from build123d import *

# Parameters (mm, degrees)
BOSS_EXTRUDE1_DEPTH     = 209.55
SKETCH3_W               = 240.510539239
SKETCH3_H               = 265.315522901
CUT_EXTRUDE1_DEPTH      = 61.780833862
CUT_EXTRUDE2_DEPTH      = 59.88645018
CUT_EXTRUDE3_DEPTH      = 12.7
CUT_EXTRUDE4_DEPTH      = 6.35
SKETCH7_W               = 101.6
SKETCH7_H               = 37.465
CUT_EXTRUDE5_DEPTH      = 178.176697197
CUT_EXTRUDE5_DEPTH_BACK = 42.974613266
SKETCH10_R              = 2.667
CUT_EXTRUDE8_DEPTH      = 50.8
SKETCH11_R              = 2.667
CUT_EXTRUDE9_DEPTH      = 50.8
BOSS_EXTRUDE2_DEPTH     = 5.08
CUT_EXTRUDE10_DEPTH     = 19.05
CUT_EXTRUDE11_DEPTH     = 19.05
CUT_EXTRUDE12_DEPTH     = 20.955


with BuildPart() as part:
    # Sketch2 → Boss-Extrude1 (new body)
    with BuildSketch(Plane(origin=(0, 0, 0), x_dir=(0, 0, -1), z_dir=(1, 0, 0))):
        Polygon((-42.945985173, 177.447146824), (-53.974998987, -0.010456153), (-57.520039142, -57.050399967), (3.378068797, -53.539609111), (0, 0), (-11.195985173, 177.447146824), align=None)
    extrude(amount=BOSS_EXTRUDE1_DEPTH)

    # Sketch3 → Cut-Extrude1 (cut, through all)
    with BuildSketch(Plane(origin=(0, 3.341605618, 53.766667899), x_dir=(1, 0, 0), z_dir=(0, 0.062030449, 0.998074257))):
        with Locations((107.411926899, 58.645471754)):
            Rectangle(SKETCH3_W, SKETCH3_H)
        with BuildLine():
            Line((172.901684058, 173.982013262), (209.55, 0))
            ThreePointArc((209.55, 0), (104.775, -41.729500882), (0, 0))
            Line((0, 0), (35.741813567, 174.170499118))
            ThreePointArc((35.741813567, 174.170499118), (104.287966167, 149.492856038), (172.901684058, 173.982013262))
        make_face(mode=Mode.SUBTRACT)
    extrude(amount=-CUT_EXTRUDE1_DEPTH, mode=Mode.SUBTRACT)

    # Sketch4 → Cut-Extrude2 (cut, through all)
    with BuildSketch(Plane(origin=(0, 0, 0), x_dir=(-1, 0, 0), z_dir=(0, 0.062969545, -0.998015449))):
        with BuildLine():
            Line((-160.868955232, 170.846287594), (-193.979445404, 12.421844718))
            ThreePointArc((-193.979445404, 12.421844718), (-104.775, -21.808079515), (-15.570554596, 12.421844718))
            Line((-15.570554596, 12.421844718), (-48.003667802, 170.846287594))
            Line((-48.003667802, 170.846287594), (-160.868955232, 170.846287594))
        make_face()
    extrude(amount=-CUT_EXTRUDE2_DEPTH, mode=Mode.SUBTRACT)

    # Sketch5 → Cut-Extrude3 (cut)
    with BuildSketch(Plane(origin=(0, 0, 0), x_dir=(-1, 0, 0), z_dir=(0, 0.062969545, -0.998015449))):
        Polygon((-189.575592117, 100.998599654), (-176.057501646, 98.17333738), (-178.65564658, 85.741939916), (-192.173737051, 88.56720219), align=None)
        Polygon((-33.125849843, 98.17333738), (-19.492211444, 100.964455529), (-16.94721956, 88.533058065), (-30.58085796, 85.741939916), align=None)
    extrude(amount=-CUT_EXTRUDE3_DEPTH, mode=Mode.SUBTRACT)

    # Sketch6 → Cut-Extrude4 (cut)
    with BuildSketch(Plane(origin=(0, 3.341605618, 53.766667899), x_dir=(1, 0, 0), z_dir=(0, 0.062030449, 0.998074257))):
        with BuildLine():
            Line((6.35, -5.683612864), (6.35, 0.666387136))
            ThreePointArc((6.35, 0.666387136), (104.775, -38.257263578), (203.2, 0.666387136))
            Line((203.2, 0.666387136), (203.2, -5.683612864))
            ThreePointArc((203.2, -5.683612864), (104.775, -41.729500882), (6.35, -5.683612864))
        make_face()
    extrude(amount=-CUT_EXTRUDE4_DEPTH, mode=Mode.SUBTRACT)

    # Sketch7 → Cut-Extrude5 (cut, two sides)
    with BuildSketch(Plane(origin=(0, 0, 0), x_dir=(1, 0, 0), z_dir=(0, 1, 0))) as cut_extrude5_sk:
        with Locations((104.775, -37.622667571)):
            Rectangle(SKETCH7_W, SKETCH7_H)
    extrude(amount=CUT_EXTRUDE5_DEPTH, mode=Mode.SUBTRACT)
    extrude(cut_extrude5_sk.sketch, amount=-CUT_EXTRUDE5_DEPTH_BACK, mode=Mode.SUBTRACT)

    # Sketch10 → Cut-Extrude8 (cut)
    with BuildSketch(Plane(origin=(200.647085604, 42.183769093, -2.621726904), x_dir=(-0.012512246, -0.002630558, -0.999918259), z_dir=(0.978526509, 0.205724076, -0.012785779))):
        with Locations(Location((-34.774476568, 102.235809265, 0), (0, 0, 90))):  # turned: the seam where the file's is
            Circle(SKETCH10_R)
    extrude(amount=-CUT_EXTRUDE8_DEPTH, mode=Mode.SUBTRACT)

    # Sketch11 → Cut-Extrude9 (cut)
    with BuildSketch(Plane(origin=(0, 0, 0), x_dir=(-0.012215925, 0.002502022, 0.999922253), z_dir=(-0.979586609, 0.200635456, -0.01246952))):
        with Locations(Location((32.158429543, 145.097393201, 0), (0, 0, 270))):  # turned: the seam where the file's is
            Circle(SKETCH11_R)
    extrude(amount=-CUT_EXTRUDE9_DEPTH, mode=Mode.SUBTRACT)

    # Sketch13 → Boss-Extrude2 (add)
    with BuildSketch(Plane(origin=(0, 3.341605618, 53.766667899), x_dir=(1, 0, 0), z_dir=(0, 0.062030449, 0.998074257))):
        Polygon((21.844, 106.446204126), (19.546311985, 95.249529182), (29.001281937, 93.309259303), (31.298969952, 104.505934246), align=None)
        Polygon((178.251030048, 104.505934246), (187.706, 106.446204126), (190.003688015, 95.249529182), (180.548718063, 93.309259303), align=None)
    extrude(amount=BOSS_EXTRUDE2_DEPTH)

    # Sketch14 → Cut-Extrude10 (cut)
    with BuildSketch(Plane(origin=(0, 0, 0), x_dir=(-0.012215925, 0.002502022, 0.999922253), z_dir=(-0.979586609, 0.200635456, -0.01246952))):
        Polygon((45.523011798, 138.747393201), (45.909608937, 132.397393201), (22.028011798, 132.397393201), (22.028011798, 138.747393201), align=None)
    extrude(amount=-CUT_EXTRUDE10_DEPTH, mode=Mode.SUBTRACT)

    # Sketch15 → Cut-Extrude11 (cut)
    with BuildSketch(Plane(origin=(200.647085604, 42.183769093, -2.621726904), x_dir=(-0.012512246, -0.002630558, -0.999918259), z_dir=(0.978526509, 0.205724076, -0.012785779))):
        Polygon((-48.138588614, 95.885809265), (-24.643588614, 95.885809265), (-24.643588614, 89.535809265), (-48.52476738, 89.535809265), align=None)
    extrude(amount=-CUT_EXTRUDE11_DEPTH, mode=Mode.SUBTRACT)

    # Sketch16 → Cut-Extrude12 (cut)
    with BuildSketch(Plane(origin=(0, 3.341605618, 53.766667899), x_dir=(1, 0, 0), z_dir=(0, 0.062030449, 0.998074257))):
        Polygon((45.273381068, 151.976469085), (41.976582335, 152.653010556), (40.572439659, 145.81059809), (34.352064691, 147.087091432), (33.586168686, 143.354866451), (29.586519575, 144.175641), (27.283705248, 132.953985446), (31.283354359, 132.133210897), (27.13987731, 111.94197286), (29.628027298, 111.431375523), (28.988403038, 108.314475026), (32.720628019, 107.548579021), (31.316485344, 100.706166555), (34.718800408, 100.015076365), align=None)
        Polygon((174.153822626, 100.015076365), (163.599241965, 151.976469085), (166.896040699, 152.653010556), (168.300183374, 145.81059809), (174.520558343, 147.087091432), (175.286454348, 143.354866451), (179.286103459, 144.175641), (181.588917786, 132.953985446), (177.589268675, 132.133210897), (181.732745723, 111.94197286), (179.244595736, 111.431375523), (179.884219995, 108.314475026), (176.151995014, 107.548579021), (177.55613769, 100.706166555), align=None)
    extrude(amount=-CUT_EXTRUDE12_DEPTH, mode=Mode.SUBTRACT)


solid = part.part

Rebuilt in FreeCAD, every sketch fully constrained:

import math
import FreeCAD as App
import Part
import Sketcher

V = App.Vector
Q = App.Units.Quantity

doc = App.newDocument("Part")
body = doc.addObject("PartDesign::Body", "Body")

sketch1 = doc.addObject("Sketcher::SketchObject", "Sketch")
body.addObject(sketch1)
sketch1.AttachmentSupport = (doc.YZ_Plane, [""])
sketch1.MapMode = "FlatFace"
sketch1.addGeometry([
    Part.LineSegment(V(177.447147, 42.945985, 0), V(-0.010456, 53.974999, 0)),
    Part.LineSegment(V(-0.010456, 53.974999, 0), V(-57.0504, 57.520039, 0)),
    Part.LineSegment(V(-57.0504, 57.520039, 0), V(-53.539609, -3.378069, 0)),
    Part.LineSegment(V(-53.539609, -3.378069, 0), V(0, 0, 0)),
    Part.LineSegment(V(0, 0, 0), V(177.447147, 11.195985, 0)),
    Part.LineSegment(V(177.447147, 11.195985, 0), V(177.447147, 42.945985, 0)),
], False)
sketch1.addConstraint([
    Sketcher.Constraint("Coincident", 0, 2, 1, 1),
    Sketcher.Constraint("Coincident", 1, 2, 2, 1),
    Sketcher.Constraint("Coincident", 2, 2, 3, 1),
    Sketcher.Constraint("Coincident", 3, 2, 4, 1),
    Sketcher.Constraint("Coincident", 4, 2, 5, 1),
    Sketcher.Constraint("Coincident", 5, 2, 0, 1),
    Sketcher.Constraint("Vertical", 5),
    Sketcher.Constraint("Coincident", 3, 2, -1, 1),
    Sketcher.Constraint("Parallel", 0, 1),
    Sketcher.Constraint("Parallel", 3, 4),
    Sketcher.Constraint("Equal", 0, 4),
    Sketcher.Constraint("Distance", 0, Q("7 in")),
    Sketcher.Constraint("DistanceY", 5, 1, 5, 2, Q("1.25 in")),
    Sketcher.Constraint("Distance", 1, Q("2.25 in")),
    Sketcher.Constraint("DistanceY", -1, 1, 0, 2, Q("2.125 in")),
    Sketcher.Constraint("DistanceX", 1, 2, -1, 1, Q("57.0504 mm")),
    Sketcher.Constraint("DistanceX", 2, 2, -1, 1, Q("53.539609 mm")),
])
pad1 = doc.addObject("PartDesign::Pad", "Pad")
body.addObject(pad1)
pad1.Profile = sketch1
pad1.Length = Q("8.25 in")

sketch2 = doc.addObject("Sketcher::SketchObject", "Sketch001")
body.addObject(sketch2)
sketch2.Placement = App.Placement(V(0, 3.341606, 53.766668), App.Rotation(V(1, 0, 0), V(0, 0.998074257, -0.062030449), V(0, 0.062030449, 0.998074257), "ZXY"))
sketch2.addGeometry([
    Part.LineSegment(V(-12.843343, 191.303233, 0), V(-12.843343, -74.01229, 0)),
    Part.LineSegment(V(-12.843343, -74.01229, 0), V(227.667197, -74.01229, 0)),
    Part.LineSegment(V(227.667197, -74.01229, 0), V(227.667197, 191.303233, 0)),
    Part.LineSegment(V(227.667197, 191.303233, 0), V(-12.843343, 191.303233, 0)),
    Part.ArcOfCircle(Part.Circle(V(104.436312, 257.442754, 0), V(0, 0, 1), 107.95), math.radians(-129.520538), math.radians(-50.636934)),
    Part.LineSegment(V(172.901684, 173.982013, 0), V(209.55, 0, 0)),
    Part.ArcOfCircle(Part.Circle(V(104.775, 110.670499, 0), V(0, 0, 1), 152.4), math.radians(-133.432537), math.radians(-46.567463)),
    Part.LineSegment(V(0, 0, 0), V(35.741814, 174.170499, 0)),
], False)
sketch2.addConstraint([
    Sketcher.Constraint("Coincident", 0, 2, 1, 1),
    Sketcher.Constraint("Coincident", 1, 2, 2, 1),
    Sketcher.Constraint("Coincident", 2, 2, 3, 1),
    Sketcher.Constraint("Coincident", 3, 2, 0, 1),
    Sketcher.Constraint("Coincident", 4, 2, 5, 1),
    Sketcher.Constraint("Coincident", 5, 2, 6, 2),
    Sketcher.Constraint("Coincident", 6, 1, 7, 1),
    Sketcher.Constraint("Coincident", 7, 2, 4, 1),
    Sketcher.Constraint("Vertical", 0),
    Sketcher.Constraint("Horizontal", 1),
    Sketcher.Constraint("Vertical", 2),
    Sketcher.Constraint("Horizontal", 3),
    Sketcher.Constraint("Coincident", 6, 1, -1, 1),
    Sketcher.Constraint("PointOnObject", 5, 2, -1),
    Sketcher.Constraint("Equal", 5, 7),
    Sketcher.Constraint("Radius", 6, Q("6 in")),
    Sketcher.Constraint("Radius", 4, Q("4.25 in")),
    Sketcher.Constraint("Distance", 5, Q("7 in")),
    Sketcher.Constraint("DistanceY", 6, 3, 7, 2, Q("2.5 in")),
    Sketcher.Constraint("DistanceX", -1, 1, 5, 2, Q("8.25 in")),
    Sketcher.Constraint("DistanceX", 1, 1, 1, 2, Q("240.510539 mm")),
    Sketcher.Constraint("DistanceY", 0, 2, 0, 1, Q("265.315523 mm")),
    Sketcher.Constraint("DistanceX", -1, 1, 4, 3, Q("104.436312 mm")),
    Sketcher.Constraint("DistanceY", 0, 2, -1, 1, Q("74.01229 mm")),
    Sketcher.Constraint("DistanceX", 0, 2, -1, 1, Q("12.843343 mm")),
])
pocket1 = doc.addObject("PartDesign::Pocket", "Pocket")
body.addObject(pocket1)
pocket1.Profile = sketch2
pocket1.Type = "ThroughAll"

sketch3 = doc.addObject("Sketcher::SketchObject", "Sketch002")
body.addObject(sketch3)
sketch3.Placement = App.Placement(V(0, 0, 0), App.Rotation(V(-1, 0, 0), V(0, 0.998015449, 0.062969545), V(0, 0.062969545, -0.998015449), "ZXY"))
sketch3.addGeometry([
    Part.LineSegment(V(-160.868955, 170.846288, 0), V(-193.979445, 12.421845, 0)),
    Part.ArcOfCircle(Part.Circle(V(-104.775, 111.54192, 0), V(0, 0, 1), 133.35), math.radians(-131.986055), math.radians(-48.013945)),
    Part.LineSegment(V(-15.570555, 12.421845, 0), V(-48.003668, 170.846288, 0)),
    Part.LineSegment(V(-48.003668, 170.846288, 0), V(-160.868955, 170.846288, 0)),
], False)
sketch3.addConstraint([
    Sketcher.Constraint("Coincident", 0, 2, 1, 1),
    Sketcher.Constraint("Coincident", 1, 2, 2, 1),
    Sketcher.Constraint("Coincident", 2, 2, 3, 1),
    Sketcher.Constraint("Coincident", 3, 2, 0, 1),
    Sketcher.Constraint("Horizontal", 3),
    Sketcher.Constraint("Horizontal", 0, 2, 1, 2),
    Sketcher.Constraint("Radius", 1, Q("5.25 in")),
    Sketcher.Constraint("DistanceX", 1, 3, -1, 1, Q("4.125 in")),
    Sketcher.Constraint("DistanceX", 3, 2, 1, 2, Q("145.298401 mm")),
    Sketcher.Constraint("Distance", 2, Q("161.710268 mm")),
    Sketcher.Constraint("DistanceX", 3, 2, 3, 1, Q("112.865287 mm")),
    Sketcher.Constraint("DistanceY", -1, 1, 1, 3, Q("111.54192 mm")),
    Sketcher.Constraint("DistanceX", 0, 2, 1, 2, Q("178.408891 mm")),
])
pocket2 = doc.addObject("PartDesign::Pocket", "Pocket001")
body.addObject(pocket2)
pocket2.Profile = sketch3
pocket2.Type = "ThroughAll"

sketch4 = doc.addObject("Sketcher::SketchObject", "Sketch003")
body.addObject(sketch4)
sketch4.Placement = App.Placement(V(0, 0, 0), App.Rotation(V(-1, 0, 0), V(0, 0.998015449, 0.062969545), V(0, 0.062969545, -0.998015449), "ZXY"))
sketch4.addGeometry([
    Part.LineSegment(V(-176.057502, 98.173337, 0), V(-189.575592, 100.9986, 0)),
    Part.LineSegment(V(-189.575592, 100.9986, 0), V(-192.173737, 88.567202, 0)),
    Part.LineSegment(V(-192.173737, 88.567202, 0), V(-178.655647, 85.74194, 0)),
    Part.LineSegment(V(-178.655647, 85.74194, 0), V(-176.057502, 98.173337, 0)),
    Part.LineSegment(V(-19.492211, 100.964456, 0), V(-33.12585, 98.173337, 0)),
    Part.LineSegment(V(-33.12585, 98.173337, 0), V(-30.580858, 85.74194, 0)),
    Part.LineSegment(V(-30.580858, 85.74194, 0), V(-16.94722, 88.533058, 0)),
    Part.LineSegment(V(-16.94722, 88.533058, 0), V(-19.492211, 100.964456, 0)),
], False)
sketch4.addConstraint([
    Sketcher.Constraint("Coincident", 0, 2, 1, 1),
    Sketcher.Constraint("Coincident", 1, 2, 2, 1),
    Sketcher.Constraint("Coincident", 2, 2, 3, 1),
    Sketcher.Constraint("Coincident", 3, 2, 0, 1),
    Sketcher.Constraint("Coincident", 4, 2, 5, 1),
    Sketcher.Constraint("Coincident", 5, 2, 6, 1),
    Sketcher.Constraint("Coincident", 6, 2, 7, 1),
    Sketcher.Constraint("Coincident", 7, 2, 4, 1),
    Sketcher.Constraint("Perpendicular", 0, 1),
    Sketcher.Constraint("Perpendicular", 1, 2),
    Sketcher.Constraint("Perpendicular", 2, 3),
    Sketcher.Constraint("Perpendicular", 4, 5),
    Sketcher.Constraint("Perpendicular", 5, 6),
    Sketcher.Constraint("Perpendicular", 6, 7),
    Sketcher.Constraint("Horizontal", 3, 2, 4, 2),
    Sketcher.Constraint("Horizontal", 2, 2, 5, 2),
    Sketcher.Constraint("Distance", 1, Q("0.5 in")),
    Sketcher.Constraint("DistanceY", -1, 1, 0, 2, Q("100.9986 mm")),
    Sketcher.Constraint("DistanceX", 3, 2, -1, 1, Q("176.057502 mm")),
    Sketcher.Constraint("Distance", 4, Q("13.916409 mm")),
    Sketcher.Constraint("DistanceY", -1, 1, 2, 2, Q("85.74194 mm")),
    Sketcher.Constraint("DistanceX", 4, 2, -1, 1, Q("33.12585 mm")),
    Sketcher.Constraint("DistanceX", 6, 2, -1, 1, Q("16.94722 mm")),
    Sketcher.Constraint("DistanceY", -1, 1, 6, 2, Q("88.533058 mm")),
])
pocket3 = doc.addObject("PartDesign::Pocket", "Pocket002")
body.addObject(pocket3)
pocket3.Profile = sketch4
pocket3.Length = Q("0.5 in")

sketch5 = doc.addObject("Sketcher::SketchObject", "Sketch004")
body.addObject(sketch5)
sketch5.Placement = App.Placement(V(0, 3.341606, 53.766668), App.Rotation(V(1, 0, 0), V(0, 0.998074257, -0.062030449), V(0, 0.062030449, 0.998074257), "ZXY"))
sketch5.addGeometry([
    Part.LineSegment(V(6.35, 0.666387, 0), V(6.35, -5.683613, 0)),
    Part.ArcOfCircle(Part.Circle(V(104.775, 110.670499, 0), V(0, 0, 1), 152.4), math.radians(-130.228185), math.radians(-49.771815)),
    Part.LineSegment(V(203.2, -5.683613, 0), V(203.2, 0.666387, 0)),
    Part.ArcOfCircle(Part.Circle(V(104.775, 105.646648, 0), V(0, 0, 1), 143.903912), math.radians(-133.154134), math.radians(-46.845866)),
], False)
sketch5.addConstraint([
    Sketcher.Constraint("Coincident", 0, 2, 1, 1),
    Sketcher.Constraint("Coincident", 1, 2, 2, 1),
    Sketcher.Constraint("Coincident", 2, 2, 3, 2),
    Sketcher.Constraint("Coincident", 3, 1, 0, 1),
    Sketcher.Constraint("Vertical", 0),
    Sketcher.Constraint("Vertical", 2),
    Sketcher.Constraint("Horizontal", 0, 2, 1, 2),
    Sketcher.Constraint("Horizontal", 2, 2, 3, 1),
    Sketcher.Constraint("Radius", 1, Q("6 in")),
    Sketcher.Constraint("DistanceX", -1, 1, 1, 2, Q("8 in")),
    Sketcher.Constraint("DistanceY", 0, 2, 0, 1, Q("0.25 in")),
    Sketcher.Constraint("DistanceX", -1, 1, 0, 2, Q("0.25 in")),
    Sketcher.Constraint("Radius", 3, Q("143.903912 mm")),
    Sketcher.Constraint("DistanceY", -1, 1, 1, 3, Q("110.670499 mm")),
])
pocket4 = doc.addObject("PartDesign::Pocket", "Pocket003")
body.addObject(pocket4)
pocket4.Profile = sketch5
pocket4.Length = Q("0.25 in")

sketch6 = doc.addObject("Sketcher::SketchObject", "Sketch005")
body.addObject(sketch6)
sketch6.AttachmentSupport = (doc.XZ_Plane, [""])
sketch6.MapMode = "FlatFace"
sketch6.addGeometry([
    Part.LineSegment(V(53.975, 18.890168, 0), V(53.975, 56.355168, 0)),
    Part.LineSegment(V(53.975, 56.355168, 0), V(155.575, 56.355168, 0)),
    Part.LineSegment(V(155.575, 56.355168, 0), V(155.575, 18.890168, 0)),
    Part.LineSegment(V(155.575, 18.890168, 0), V(53.975, 18.890168, 0)),
], False)
sketch6.addConstraint([
    Sketcher.Constraint("Coincident", 0, 2, 1, 1),
    Sketcher.Constraint("Coincident", 1, 2, 2, 1),
    Sketcher.Constraint("Coincident", 2, 2, 3, 1),
    Sketcher.Constraint("Coincident", 3, 2, 0, 1),
    Sketcher.Constraint("Vertical", 0),
    Sketcher.Constraint("Horizontal", 1),
    Sketcher.Constraint("Vertical", 2),
    Sketcher.Constraint("Horizontal", 3),
    Sketcher.Constraint("DistanceX", 1, 1, 1, 2, Q("4 in")),
    Sketcher.Constraint("DistanceY", 0, 1, 0, 2, Q("1.475 in")),
    Sketcher.Constraint("DistanceX", -1, 1, 0, 2, Q("2.125 in")),
    Sketcher.Constraint("DistanceY", -1, 1, 0, 2, Q("56.355168 mm")),
])
pocket5 = doc.addObject("PartDesign::Pocket", "Pocket004")
body.addObject(pocket5)
pocket5.Profile = sketch6
pocket5.Type = "ThroughAll"
pocket5.Midplane = True

sketch7 = doc.addObject("Sketcher::SketchObject", "Sketch006")
body.addObject(sketch7)
sketch7.Placement = App.Placement(V(200.647086, 42.183769, -2.621727), App.Rotation(V(-0.012512246, -0.002630558, -0.999918259), V(-0.205740894, 0.978606502, 0), V(0.978526509, 0.205724076, -0.012785779), "ZXY"))
sketch7.addGeometry(Part.Circle(V(-34.774477, 102.235809, 0), V(0, 0, 1), 2.667), False)
sketch7.addConstraint([
    Sketcher.Constraint("Diameter", 0, Q("0.21 in")),
    Sketcher.Constraint("DistanceY", -1, 1, 0, 3, Q("102.235809 mm")),
    Sketcher.Constraint("DistanceX", 0, 3, -1, 1, Q("34.774477 mm")),
])
pocket6 = doc.addObject("PartDesign::Pocket", "Pocket005")
body.addObject(pocket6)
pocket6.Profile = sketch7
pocket6.Length = Q("2 in")

sketch8 = doc.addObject("Sketcher::SketchObject", "Sketch007")
body.addObject(sketch8)
sketch8.Placement = App.Placement(V(0, 0, 0), App.Rotation(V(-0.012215925, 0.002502022, 0.999922253), V(0.200651056, 0.979662776, 0), V(-0.979586609, 0.200635456, -0.01246952), "ZXY"))
sketch8.addGeometry(Part.Circle(V(32.15843, 145.097393, 0), V(0, 0, 1), 2.667), False)
sketch8.addConstraint([
    Sketcher.Constraint("Diameter", 0, Q("0.21 in")),
    Sketcher.Constraint("DistanceX", -1, 1, 0, 3, Q("32.15843 mm")),
    Sketcher.Constraint("DistanceY", -1, 1, 0, 3, Q("145.097393 mm")),
])
pocket7 = doc.addObject("PartDesign::Pocket", "Pocket006")
body.addObject(pocket7)
pocket7.Profile = sketch8
pocket7.Length = Q("2 in")

sketch9 = doc.addObject("Sketcher::SketchObject", "Sketch008")
body.addObject(sketch9)
sketch9.Placement = App.Placement(V(0, 3.341606, 53.766668), App.Rotation(V(1, 0, 0), V(0, 0.998074257, -0.062030449), V(0, 0.062030449, 0.998074257), "ZXY"))
sketch9.addGeometry([
    Part.LineSegment(V(21.844, 106.446204, 0), V(19.546312, 95.249529, 0)),
    Part.LineSegment(V(19.546312, 95.249529, 0), V(29.001282, 93.309259, 0)),
    Part.LineSegment(V(29.001282, 93.309259, 0), V(31.29897, 104.505934, 0)),
    Part.LineSegment(V(31.29897, 104.505934, 0), V(21.844, 106.446204, 0)),
    Part.LineSegment(V(187.706, 106.446204, 0), V(178.25103, 104.505934, 0)),
    Part.LineSegment(V(178.25103, 104.505934, 0), V(180.548718, 93.309259, 0)),
    Part.LineSegment(V(180.548718, 93.309259, 0), V(190.003688, 95.249529, 0)),
    Part.LineSegment(V(190.003688, 95.249529, 0), V(187.706, 106.446204, 0)),
], False)
sketch9.addConstraint([
    Sketcher.Constraint("Coincident", 0, 2, 1, 1),
    Sketcher.Constraint("Coincident", 1, 2, 2, 1),
    Sketcher.Constraint("Coincident", 2, 2, 3, 1),
    Sketcher.Constraint("Coincident", 3, 2, 0, 1),
    Sketcher.Constraint("Coincident", 4, 2, 5, 1),
    Sketcher.Constraint("Coincident", 5, 2, 6, 1),
    Sketcher.Constraint("Coincident", 6, 2, 7, 1),
    Sketcher.Constraint("Coincident", 7, 2, 4, 1),
    Sketcher.Constraint("Perpendicular", 0, 1),
    Sketcher.Constraint("Perpendicular", 1, 2),
    Sketcher.Constraint("Perpendicular", 2, 3),
    Sketcher.Constraint("Perpendicular", 4, 5),
    Sketcher.Constraint("Perpendicular", 5, 6),
    Sketcher.Constraint("Perpendicular", 6, 7),
    Sketcher.Constraint("Horizontal", 2, 2, 4, 2),
    Sketcher.Constraint("Horizontal", 1, 2, 5, 2),
    Sketcher.Constraint("Horizontal", 0, 2, 6, 2),
    Sketcher.Constraint("Equal", 3, 4),
    Sketcher.Constraint("Distance", 0, Q("0.45 in")),
    Sketcher.Constraint("Distance", 1, Q("0.38 in")),
    Sketcher.Constraint("DistanceX", -1, 1, 3, 2, Q("0.86 in")),
    Sketcher.Constraint("DistanceX", -1, 1, 7, 2, Q("7.39 in")),
    Sketcher.Constraint("DistanceX", -1, 1, 0, 2, Q("19.546312 mm")),
    Sketcher.Constraint("DistanceY", -1, 1, 0, 2, Q("95.249529 mm")),
])
pad2 = doc.addObject("PartDesign::Pad", "Pad001")
body.addObject(pad2)
pad2.Profile = sketch9
pad2.Length = Q("0.2 in")

sketch10 = doc.addObject("Sketcher::SketchObject", "Sketch009")
body.addObject(sketch10)
sketch10.Placement = App.Placement(V(0, 0, 0), App.Rotation(V(-0.012215925, 0.002502022, 0.999922253), V(0.200651056, 0.979662776, 0), V(-0.979586609, 0.200635456, -0.01246952), "ZXY"))
sketch10.addGeometry([
    Part.LineSegment(V(45.909609, 132.397393, 0), V(45.523012, 138.747393, 0)),
    Part.LineSegment(V(45.523012, 138.747393, 0), V(22.028012, 138.747393, 0)),
    Part.LineSegment(V(22.028012, 138.747393, 0), V(22.028012, 132.397393, 0)),
    Part.LineSegment(V(22.028012, 132.397393, 0), V(45.909609, 132.397393, 0)),
], False)
sketch10.addConstraint([
    Sketcher.Constraint("Coincident", 0, 2, 1, 1),
    Sketcher.Constraint("Coincident", 1, 2, 2, 1),
    Sketcher.Constraint("Coincident", 2, 2, 3, 1),
    Sketcher.Constraint("Coincident", 3, 2, 0, 1),
    Sketcher.Constraint("Horizontal", 1),
    Sketcher.Constraint("Vertical", 2),
    Sketcher.Constraint("Horizontal", 3),
    Sketcher.Constraint("DistanceY", 2, 2, 2, 1, Q("0.25 in")),
    Sketcher.Constraint("DistanceX", 1, 2, 1, 1, Q("0.925 in")),
    Sketcher.Constraint("DistanceX", 3, 1, 3, 2, Q("23.881597 mm")),
    Sketcher.Constraint("DistanceX", -1, 1, 0, 2, Q("45.523012 mm")),
    Sketcher.Constraint("DistanceY", -1, 1, 0, 2, Q("138.747393 mm")),
])
pocket8 = doc.addObject("PartDesign::Pocket", "Pocket007")
body.addObject(pocket8)
pocket8.Profile = sketch10
pocket8.Length = Q("0.75 in")

sketch11 = doc.addObject("Sketcher::SketchObject", "Sketch010")
body.addObject(sketch11)
sketch11.Placement = App.Placement(V(200.647086, 42.183769, -2.621727), App.Rotation(V(-0.012512246, -0.002630558, -0.999918259), V(-0.205740894, 0.978606502, 0), V(0.978526509, 0.205724076, -0.012785779), "ZXY"))
sketch11.addGeometry([
    Part.LineSegment(V(-24.643589, 95.885809, 0), V(-48.138589, 95.885809, 0)),
    Part.LineSegment(V(-48.138589, 95.885809, 0), V(-48.524767, 89.535809, 0)),
    Part.LineSegment(V(-48.524767, 89.535809, 0), V(-24.643589, 89.535809, 0)),
    Part.LineSegment(V(-24.643589, 89.535809, 0), V(-24.643589, 95.885809, 0)),
], False)
sketch11.addConstraint([
    Sketcher.Constraint("Coincident", 0, 2, 1, 1),
    Sketcher.Constraint("Coincident", 1, 2, 2, 1),
    Sketcher.Constraint("Coincident", 2, 2, 3, 1),
    Sketcher.Constraint("Coincident", 3, 2, 0, 1),
    Sketcher.Constraint("Horizontal", 0),
    Sketcher.Constraint("Horizontal", 2),
    Sketcher.Constraint("Vertical", 3),
    Sketcher.Constraint("DistanceY", 3, 1, 3, 2, Q("0.25 in")),
    Sketcher.Constraint("DistanceX", 0, 2, 0, 1, Q("0.925 in")),
    Sketcher.Constraint("DistanceX", 2, 1, 2, 2, Q("23.881179 mm")),
    Sketcher.Constraint("DistanceX", 0, 2, -1, 1, Q("48.138589 mm")),
    Sketcher.Constraint("DistanceY", -1, 1, 0, 2, Q("95.885809 mm")),
])
pocket9 = doc.addObject("PartDesign::Pocket", "Pocket008")
body.addObject(pocket9)
pocket9.Profile = sketch11
pocket9.Length = Q("0.75 in")

sketch12 = doc.addObject("Sketcher::SketchObject", "Sketch011")
body.addObject(sketch12)
sketch12.Placement = App.Placement(V(0, 3.341606, 53.766668), App.Rotation(V(1, 0, 0), V(0, 0.998074257, -0.062030449), V(0, 0.062030449, 0.998074257), "ZXY"))
sketch12.addGeometry([
    Part.LineSegment(V(45.273381, 151.976469, 0), V(41.976582, 152.65301, 0)),
    Part.LineSegment(V(41.976582, 152.65301, 0), V(40.57244, 145.810598, 0)),
    Part.LineSegment(V(40.57244, 145.810598, 0), V(34.352065, 147.087091, 0)),
    Part.LineSegment(V(34.352065, 147.087091, 0), V(33.586169, 143.354866, 0)),
    Part.LineSegment(V(33.586169, 143.354866, 0), V(29.58652, 144.175641, 0)),
    Part.LineSegment(V(29.58652, 144.175641, 0), V(27.283705, 132.953985, 0)),
    Part.LineSegment(V(27.283705, 132.953985, 0), V(31.283354, 132.133211, 0)),
    Part.LineSegment(V(31.283354, 132.133211, 0), V(27.139877, 111.941973, 0)),
    Part.LineSegment(V(27.139877, 111.941973, 0), V(29.628027, 111.431375, 0)),
    Part.LineSegment(V(29.628027, 111.431375, 0), V(28.988403, 108.314475, 0)),
    Part.LineSegment(V(28.988403, 108.314475, 0), V(32.720628, 107.548579, 0)),
    Part.LineSegment(V(32.720628, 107.548579, 0), V(31.316485, 100.706166, 0)),
    Part.LineSegment(V(31.316485, 100.706166, 0), V(34.7188, 100.015076, 0)),
    Part.LineSegment(V(34.7188, 100.015076, 0), V(45.273381, 151.976469, 0)),
    Part.LineSegment(V(163.599242, 151.976469, 0), V(174.153823, 100.015076, 0)),
    Part.LineSegment(V(174.153823, 100.015076, 0), V(177.556138, 100.706166, 0)),
    Part.LineSegment(V(177.556138, 100.706166, 0), V(176.151995, 107.548579, 0)),
    Part.LineSegment(V(176.151995, 107.548579, 0), V(179.88422, 108.314475, 0)),
    Part.LineSegment(V(179.88422, 108.314475, 0), V(179.244596, 111.431375, 0)),
    Part.LineSegment(V(179.244596, 111.431375, 0), V(181.732746, 111.941973, 0)),
    Part.LineSegment(V(181.732746, 111.941973, 0), V(177.589269, 132.133211, 0)),
    Part.LineSegment(V(177.589269, 132.133211, 0), V(181.588918, 132.953985, 0)),
    Part.LineSegment(V(181.588918, 132.953985, 0), V(179.286103, 144.175641, 0)),
    Part.LineSegment(V(179.286103, 144.175641, 0), V(175.286454, 143.354866, 0)),
    Part.LineSegment(V(175.286454, 143.354866, 0), V(174.520558, 147.087091, 0)),
    Part.LineSegment(V(174.520558, 147.087091, 0), V(168.300183, 145.810598, 0)),
    Part.LineSegment(V(168.300183, 145.810598, 0), V(166.896041, 152.65301, 0)),
    Part.LineSegment(V(166.896041, 152.65301, 0), V(163.599242, 151.976469, 0)),
], False)
sketch12.addConstraint([
    Sketcher.Constraint("Coincident", 0, 2, 1, 1),
    Sketcher.Constraint("Coincident", 1, 2, 2, 1),
    Sketcher.Constraint("Coincident", 2, 2, 3, 1),
    Sketcher.Constraint("Coincident", 3, 2, 4, 1),
    Sketcher.Constraint("Coincident", 4, 2, 5, 1),
    Sketcher.Constraint("Coincident", 5, 2, 6, 1),
    Sketcher.Constraint("Coincident", 6, 2, 7, 1),
    Sketcher.Constraint("Coincident", 7, 2, 8, 1),
    Sketcher.Constraint("Coincident", 8, 2, 9, 1),
    Sketcher.Constraint("Coincident", 9, 2, 10, 1),
    Sketcher.Constraint("Coincident", 10, 2, 11, 1),
    Sketcher.Constraint("Coincident", 11, 2, 12, 1),
    Sketcher.Constraint("Coincident", 12, 2, 13, 1),
    Sketcher.Constraint("Coincident", 13, 2, 0, 1),
    Sketcher.Constraint("Coincident", 14, 2, 15, 1),
    Sketcher.Constraint("Coincident", 15, 2, 16, 1),
    Sketcher.Constraint("Coincident", 16, 2, 17, 1),
    Sketcher.Constraint("Coincident", 17, 2, 18, 1),
    Sketcher.Constraint("Coincident", 18, 2, 19, 1),
    Sketcher.Constraint("Coincident", 19, 2, 20, 1),
    Sketcher.Constraint("Coincident", 20, 2, 21, 1),
    Sketcher.Constraint("Coincident", 21, 2, 22, 1),
    Sketcher.Constraint("Coincident", 22, 2, 23, 1),
    Sketcher.Constraint("Coincident", 23, 2, 24, 1),
    Sketcher.Constraint("Coincident", 24, 2, 25, 1),
    Sketcher.Constraint("Coincident", 25, 2, 26, 1),
    Sketcher.Constraint("Coincident", 26, 2, 27, 1),
    Sketcher.Constraint("Coincident", 27, 2, 14, 1),
    Sketcher.Constraint("Perpendicular", 0, 1),
    Sketcher.Constraint("Perpendicular", 1, 2),
    Sketcher.Constraint("Perpendicular", 2, 3),
    Sketcher.Constraint("Perpendicular", 3, 4),
    Sketcher.Constraint("Perpendicular", 4, 5),
    Sketcher.Constraint("Perpendicular", 5, 6),
    Sketcher.Constraint("Perpendicular", 6, 7),
    Sketcher.Constraint("Perpendicular", 7, 8),
    Sketcher.Constraint("Perpendicular", 8, 9),
    Sketcher.Constraint("Perpendicular", 9, 10),
    Sketcher.Constraint("Perpendicular", 10, 11),
    Sketcher.Constraint("Perpendicular", 12, 13),
    Sketcher.Constraint("Perpendicular", 14, 15),
    Sketcher.Constraint("Perpendicular", 16, 17),
    Sketcher.Constraint("Perpendicular", 17, 18),
    Sketcher.Constraint("Perpendicular", 18, 19),
    Sketcher.Constraint("Perpendicular", 19, 20),
    Sketcher.Constraint("Perpendicular", 20, 21),
    Sketcher.Constraint("Perpendicular", 21, 22),
    Sketcher.Constraint("Perpendicular", 22, 23),
    Sketcher.Constraint("Perpendicular", 23, 24),
    Sketcher.Constraint("Perpendicular", 24, 25),
    Sketcher.Constraint("Perpendicular", 25, 26),
    Sketcher.Constraint("Perpendicular", 26, 27),
    Sketcher.Constraint("Horizontal", 12, 2, 14, 2),
    Sketcher.Constraint("Horizontal", 11, 2, 15, 2),
    Sketcher.Constraint("Horizontal", 10, 2, 16, 2),
    Sketcher.Constraint("Horizontal", 9, 2, 17, 2),
    Sketcher.Constraint("Horizontal", 8, 2, 18, 2),
    Sketcher.Constraint("Horizontal", 7, 2, 19, 2),
    Sketcher.Constraint("Horizontal", 6, 2, 20, 2),
    Sketcher.Constraint("Horizontal", 5, 2, 21, 2),
    Sketcher.Constraint("Horizontal", 4, 2, 22, 2),
    Sketcher.Constraint("Horizontal", 3, 2, 23, 2),
    Sketcher.Constraint("Horizontal", 2, 2, 24, 2),
    Sketcher.Constraint("Horizontal", 1, 2, 25, 2),
    Sketcher.Constraint("Horizontal", 0, 2, 26, 2),
    Sketcher.Constraint("Horizontal", 13, 2, 27, 2),
    Sketcher.Constraint("Equal", 4, 6),
    Sketcher.Constraint("Equal", 3, 10),
    Sketcher.Constraint("Equal", 1, 11),
    Sketcher.Constraint("Equal", 13, 14),
    Sketcher.Constraint("Distance", 8, Q("0.1 in")),
    Sketcher.Constraint("Distance", 2, Q("0.25 in")),
    Sketcher.Constraint("Distance", 3, Q("0.15 in")),
    Sketcher.Constraint("Distance", 1, Q("0.275 in")),
    Sketcher.Constraint("Distance", 0, Q("0.1325 in")),
    Sketcher.Constraint("Distance", 13, Q("2.0875 in")),
    Sketcher.Constraint("Distance", 5, Q("11.455501 mm")),
    Sketcher.Constraint("Distance", 7, Q("20.611999 mm")),
    Sketcher.Constraint("DistanceX", -1, 1, 12, 2, Q("34.7188 mm")),
    Sketcher.Constraint("DistanceY", 9, 2, 8, 2, Q("3.1169 mm")),
    Sketcher.Constraint("DistanceX", 8, 2, 10, 2, Q("3.092601 mm")),
    Sketcher.Constraint("DistanceX", 1, 2, 15, 2, Q("136.983698 mm")),
    Sketcher.Constraint("DistanceY", -1, 1, 0, 2, Q("152.65301 mm")),
    Sketcher.Constraint("DistanceX", -1, 1, 4, 2, Q("29.58652 mm")),
])
pocket10 = doc.addObject("PartDesign::Pocket", "Pocket009")
body.addObject(pocket10)
pocket10.Profile = sketch12
pocket10.Length = Q("0.825 in")

doc.recompute()
